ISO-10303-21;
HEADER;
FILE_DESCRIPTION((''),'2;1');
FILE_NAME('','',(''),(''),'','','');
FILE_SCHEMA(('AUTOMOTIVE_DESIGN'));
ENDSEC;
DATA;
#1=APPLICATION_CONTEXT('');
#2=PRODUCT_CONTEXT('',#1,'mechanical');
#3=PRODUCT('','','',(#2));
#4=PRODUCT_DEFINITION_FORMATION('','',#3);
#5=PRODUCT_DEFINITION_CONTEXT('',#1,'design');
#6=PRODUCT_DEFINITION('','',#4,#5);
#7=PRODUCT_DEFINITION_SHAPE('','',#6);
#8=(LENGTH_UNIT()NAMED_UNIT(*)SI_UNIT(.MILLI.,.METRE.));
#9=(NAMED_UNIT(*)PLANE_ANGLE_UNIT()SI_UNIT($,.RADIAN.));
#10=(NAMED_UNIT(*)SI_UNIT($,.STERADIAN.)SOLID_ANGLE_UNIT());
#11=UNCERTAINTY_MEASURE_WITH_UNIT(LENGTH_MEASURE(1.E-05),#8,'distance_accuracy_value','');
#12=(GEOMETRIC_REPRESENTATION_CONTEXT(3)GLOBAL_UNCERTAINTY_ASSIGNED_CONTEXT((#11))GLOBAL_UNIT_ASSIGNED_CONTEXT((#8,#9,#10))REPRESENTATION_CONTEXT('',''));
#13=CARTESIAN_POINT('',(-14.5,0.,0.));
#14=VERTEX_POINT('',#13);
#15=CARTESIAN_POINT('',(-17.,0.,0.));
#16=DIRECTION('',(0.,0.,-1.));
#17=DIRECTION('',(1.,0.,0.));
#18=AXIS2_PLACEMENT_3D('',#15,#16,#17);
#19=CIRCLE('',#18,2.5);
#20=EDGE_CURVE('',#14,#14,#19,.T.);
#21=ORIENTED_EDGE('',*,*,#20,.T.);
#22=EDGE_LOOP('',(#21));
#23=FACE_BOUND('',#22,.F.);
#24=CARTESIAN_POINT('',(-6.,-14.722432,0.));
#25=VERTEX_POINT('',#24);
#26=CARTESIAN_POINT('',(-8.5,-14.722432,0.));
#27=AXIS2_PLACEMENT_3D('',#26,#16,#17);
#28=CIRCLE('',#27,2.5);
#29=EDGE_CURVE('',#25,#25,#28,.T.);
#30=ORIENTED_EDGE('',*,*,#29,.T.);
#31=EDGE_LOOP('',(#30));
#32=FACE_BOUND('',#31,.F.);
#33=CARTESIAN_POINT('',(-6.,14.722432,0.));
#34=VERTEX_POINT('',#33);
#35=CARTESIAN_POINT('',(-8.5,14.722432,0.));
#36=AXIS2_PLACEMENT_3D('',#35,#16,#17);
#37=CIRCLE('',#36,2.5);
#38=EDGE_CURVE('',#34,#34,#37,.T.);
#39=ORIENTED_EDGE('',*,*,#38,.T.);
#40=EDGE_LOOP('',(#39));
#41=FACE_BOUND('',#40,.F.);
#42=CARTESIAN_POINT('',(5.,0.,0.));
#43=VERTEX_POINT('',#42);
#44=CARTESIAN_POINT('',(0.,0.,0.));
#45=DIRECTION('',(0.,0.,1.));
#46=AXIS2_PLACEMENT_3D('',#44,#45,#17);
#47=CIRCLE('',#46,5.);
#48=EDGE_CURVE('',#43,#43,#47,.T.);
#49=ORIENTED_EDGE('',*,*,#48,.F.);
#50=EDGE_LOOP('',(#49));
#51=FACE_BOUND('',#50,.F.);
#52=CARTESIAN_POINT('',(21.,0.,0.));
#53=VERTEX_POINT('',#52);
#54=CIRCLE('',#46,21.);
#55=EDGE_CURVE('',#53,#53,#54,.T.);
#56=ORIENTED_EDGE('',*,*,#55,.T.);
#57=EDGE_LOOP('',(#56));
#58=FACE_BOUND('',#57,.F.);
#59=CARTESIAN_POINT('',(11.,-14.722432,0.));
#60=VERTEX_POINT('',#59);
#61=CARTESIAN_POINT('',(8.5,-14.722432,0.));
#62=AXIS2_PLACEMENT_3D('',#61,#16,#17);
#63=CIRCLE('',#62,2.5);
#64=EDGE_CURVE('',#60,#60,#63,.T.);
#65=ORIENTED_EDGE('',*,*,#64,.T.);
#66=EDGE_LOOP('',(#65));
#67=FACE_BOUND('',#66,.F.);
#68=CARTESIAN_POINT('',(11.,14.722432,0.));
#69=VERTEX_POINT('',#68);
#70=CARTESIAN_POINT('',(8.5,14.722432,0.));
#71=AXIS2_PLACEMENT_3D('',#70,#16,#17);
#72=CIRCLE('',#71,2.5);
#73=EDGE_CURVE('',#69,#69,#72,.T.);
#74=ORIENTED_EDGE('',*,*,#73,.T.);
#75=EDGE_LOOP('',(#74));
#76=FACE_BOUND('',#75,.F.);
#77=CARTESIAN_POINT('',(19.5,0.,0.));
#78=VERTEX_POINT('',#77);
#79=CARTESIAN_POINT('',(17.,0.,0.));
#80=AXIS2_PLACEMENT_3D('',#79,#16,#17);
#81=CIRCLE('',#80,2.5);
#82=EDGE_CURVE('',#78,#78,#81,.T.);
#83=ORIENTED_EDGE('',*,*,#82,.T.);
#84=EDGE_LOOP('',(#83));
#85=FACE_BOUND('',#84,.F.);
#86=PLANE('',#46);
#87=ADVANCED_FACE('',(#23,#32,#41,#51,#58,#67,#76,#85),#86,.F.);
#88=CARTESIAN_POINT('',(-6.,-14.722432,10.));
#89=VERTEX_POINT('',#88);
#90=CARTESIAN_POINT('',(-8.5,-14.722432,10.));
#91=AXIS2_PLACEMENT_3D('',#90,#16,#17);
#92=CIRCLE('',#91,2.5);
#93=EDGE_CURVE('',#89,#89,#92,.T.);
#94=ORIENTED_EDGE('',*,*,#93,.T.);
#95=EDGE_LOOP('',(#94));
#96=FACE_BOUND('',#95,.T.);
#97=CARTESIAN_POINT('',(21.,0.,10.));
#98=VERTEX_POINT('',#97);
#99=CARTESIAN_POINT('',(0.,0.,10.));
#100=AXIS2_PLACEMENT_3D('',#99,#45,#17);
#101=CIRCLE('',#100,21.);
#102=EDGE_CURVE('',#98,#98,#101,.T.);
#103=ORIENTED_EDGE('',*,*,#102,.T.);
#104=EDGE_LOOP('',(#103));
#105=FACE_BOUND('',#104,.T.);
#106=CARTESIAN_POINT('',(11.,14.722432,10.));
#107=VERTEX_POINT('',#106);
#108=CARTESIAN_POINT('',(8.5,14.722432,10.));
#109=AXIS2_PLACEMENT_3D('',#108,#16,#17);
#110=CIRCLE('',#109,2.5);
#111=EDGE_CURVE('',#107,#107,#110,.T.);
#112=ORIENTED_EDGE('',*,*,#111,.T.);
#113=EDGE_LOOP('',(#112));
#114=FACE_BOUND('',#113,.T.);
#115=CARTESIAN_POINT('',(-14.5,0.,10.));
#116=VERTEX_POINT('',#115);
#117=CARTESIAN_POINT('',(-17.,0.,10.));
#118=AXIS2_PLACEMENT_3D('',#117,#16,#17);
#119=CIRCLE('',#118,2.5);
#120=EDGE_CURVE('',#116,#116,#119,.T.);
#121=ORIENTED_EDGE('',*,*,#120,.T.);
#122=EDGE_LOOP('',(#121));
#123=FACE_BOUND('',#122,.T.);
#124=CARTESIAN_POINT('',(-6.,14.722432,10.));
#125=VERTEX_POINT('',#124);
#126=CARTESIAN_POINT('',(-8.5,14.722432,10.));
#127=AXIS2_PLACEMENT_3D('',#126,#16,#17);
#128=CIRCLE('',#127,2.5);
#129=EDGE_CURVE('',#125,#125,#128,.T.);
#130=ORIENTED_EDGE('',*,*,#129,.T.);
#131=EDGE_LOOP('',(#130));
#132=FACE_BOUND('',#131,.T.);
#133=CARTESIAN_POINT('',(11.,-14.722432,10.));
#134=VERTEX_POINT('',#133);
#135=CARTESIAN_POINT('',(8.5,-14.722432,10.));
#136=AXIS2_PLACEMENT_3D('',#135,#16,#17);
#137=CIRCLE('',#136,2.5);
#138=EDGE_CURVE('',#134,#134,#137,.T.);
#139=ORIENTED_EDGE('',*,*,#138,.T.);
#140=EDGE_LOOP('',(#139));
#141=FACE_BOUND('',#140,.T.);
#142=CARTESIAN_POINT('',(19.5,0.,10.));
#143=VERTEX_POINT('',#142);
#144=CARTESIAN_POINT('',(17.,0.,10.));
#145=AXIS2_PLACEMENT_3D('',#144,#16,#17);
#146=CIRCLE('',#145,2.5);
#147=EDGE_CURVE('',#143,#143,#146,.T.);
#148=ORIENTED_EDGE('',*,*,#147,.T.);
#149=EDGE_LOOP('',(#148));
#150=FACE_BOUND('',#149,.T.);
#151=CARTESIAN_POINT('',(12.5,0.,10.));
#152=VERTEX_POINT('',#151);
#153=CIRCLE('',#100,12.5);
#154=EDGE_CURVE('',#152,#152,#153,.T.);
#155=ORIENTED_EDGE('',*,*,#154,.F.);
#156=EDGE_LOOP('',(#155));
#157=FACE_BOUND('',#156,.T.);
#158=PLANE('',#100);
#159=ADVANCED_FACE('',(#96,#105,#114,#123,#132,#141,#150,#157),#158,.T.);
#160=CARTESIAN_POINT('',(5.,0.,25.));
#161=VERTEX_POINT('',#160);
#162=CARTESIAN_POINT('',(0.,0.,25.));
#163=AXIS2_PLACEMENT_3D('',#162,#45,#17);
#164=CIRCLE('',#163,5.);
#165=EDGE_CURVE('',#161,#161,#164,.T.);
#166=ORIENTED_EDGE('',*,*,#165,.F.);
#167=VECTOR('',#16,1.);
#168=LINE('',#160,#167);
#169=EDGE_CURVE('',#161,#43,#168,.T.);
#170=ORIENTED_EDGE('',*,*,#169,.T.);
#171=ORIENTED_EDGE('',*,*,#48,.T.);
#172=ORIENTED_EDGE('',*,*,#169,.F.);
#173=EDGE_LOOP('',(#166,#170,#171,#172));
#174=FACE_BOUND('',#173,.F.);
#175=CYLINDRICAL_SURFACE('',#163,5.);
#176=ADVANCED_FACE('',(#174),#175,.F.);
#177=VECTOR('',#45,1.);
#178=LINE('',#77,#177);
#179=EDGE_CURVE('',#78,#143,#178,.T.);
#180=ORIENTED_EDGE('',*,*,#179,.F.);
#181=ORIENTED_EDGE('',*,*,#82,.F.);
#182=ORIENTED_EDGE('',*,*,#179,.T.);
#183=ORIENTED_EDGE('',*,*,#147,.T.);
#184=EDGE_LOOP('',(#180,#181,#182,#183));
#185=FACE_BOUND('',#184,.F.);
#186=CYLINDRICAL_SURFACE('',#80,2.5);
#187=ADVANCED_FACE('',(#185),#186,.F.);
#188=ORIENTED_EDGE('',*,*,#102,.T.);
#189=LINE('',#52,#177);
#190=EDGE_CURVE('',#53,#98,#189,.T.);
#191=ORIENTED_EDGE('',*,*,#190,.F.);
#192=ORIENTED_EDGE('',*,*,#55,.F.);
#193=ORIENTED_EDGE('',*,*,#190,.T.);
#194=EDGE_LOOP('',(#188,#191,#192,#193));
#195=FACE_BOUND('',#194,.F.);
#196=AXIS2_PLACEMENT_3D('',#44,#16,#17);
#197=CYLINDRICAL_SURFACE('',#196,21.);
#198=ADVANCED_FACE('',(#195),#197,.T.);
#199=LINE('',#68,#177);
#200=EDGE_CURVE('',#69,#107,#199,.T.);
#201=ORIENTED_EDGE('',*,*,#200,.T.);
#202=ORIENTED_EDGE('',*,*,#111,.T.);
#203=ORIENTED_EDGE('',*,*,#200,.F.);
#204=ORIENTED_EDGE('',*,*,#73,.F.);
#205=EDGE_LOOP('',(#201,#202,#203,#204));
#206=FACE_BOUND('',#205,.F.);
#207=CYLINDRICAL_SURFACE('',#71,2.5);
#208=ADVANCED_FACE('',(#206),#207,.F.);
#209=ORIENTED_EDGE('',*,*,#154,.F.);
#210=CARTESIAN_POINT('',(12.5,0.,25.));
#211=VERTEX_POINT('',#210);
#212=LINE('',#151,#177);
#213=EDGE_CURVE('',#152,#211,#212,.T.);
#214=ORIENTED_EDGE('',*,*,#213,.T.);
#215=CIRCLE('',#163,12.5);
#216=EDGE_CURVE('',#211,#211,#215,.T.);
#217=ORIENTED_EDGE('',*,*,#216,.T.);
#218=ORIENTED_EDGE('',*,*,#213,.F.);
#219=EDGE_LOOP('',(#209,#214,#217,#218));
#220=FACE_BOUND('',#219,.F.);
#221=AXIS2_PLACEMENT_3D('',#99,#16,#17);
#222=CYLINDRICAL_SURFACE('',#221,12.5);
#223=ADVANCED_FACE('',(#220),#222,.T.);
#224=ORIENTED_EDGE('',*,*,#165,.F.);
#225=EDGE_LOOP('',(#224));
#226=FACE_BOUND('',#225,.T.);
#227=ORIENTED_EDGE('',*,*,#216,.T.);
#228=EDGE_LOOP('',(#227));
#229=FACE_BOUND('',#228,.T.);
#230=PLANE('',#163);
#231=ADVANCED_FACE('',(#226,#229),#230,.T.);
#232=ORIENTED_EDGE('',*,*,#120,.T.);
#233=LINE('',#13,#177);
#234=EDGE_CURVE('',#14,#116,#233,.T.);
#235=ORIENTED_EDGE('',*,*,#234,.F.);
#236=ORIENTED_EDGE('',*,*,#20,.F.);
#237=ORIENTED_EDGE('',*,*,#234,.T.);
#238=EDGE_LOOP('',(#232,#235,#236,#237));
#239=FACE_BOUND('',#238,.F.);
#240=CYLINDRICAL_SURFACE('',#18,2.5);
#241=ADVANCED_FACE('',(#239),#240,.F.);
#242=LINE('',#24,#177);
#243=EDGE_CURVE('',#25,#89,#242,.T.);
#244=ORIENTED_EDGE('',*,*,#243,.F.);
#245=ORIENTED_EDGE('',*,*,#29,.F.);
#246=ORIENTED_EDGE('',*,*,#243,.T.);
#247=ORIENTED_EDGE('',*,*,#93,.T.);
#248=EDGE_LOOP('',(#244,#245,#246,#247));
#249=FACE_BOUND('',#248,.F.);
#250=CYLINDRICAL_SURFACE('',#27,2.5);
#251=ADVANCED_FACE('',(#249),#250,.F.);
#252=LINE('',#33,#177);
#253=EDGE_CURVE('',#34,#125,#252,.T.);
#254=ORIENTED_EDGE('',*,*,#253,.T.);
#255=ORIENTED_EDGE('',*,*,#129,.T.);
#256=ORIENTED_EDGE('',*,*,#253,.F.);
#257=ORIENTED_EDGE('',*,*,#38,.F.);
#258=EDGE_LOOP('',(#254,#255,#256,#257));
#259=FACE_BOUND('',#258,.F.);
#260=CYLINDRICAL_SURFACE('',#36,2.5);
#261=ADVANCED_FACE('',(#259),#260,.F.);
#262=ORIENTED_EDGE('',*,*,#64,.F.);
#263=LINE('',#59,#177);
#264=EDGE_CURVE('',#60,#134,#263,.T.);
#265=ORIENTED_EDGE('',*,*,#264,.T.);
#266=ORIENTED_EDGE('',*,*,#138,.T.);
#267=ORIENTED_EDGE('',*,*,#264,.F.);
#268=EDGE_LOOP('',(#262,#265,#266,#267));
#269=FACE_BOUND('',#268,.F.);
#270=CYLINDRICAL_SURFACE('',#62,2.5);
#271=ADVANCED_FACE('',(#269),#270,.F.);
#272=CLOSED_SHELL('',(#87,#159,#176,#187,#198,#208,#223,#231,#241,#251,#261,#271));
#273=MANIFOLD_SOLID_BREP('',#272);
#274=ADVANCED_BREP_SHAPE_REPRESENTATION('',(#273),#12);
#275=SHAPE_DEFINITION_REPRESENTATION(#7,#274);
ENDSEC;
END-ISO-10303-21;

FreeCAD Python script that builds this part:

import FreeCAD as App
import Part
import Sketcher
from FreeCAD import Vector

doc = App.newDocument("Part")
body = doc.addObject("PartDesign::Body", "Body")

sketch1 = body.newObject("Sketcher::SketchObject", "Sketch")
sketch1.AttachmentSupport = (doc.getObject("XY_Plane"), [""])
sketch1.MapMode = "FlatFace"
sketch1.addGeometry(Part.Circle(Vector(0, 0, 0), Vector(0, 0, 1), 21), False)
sketch1.addConstraint(Sketcher.Constraint("Coincident", 0, 3, -1, 1))
sketch1.addConstraint(Sketcher.Constraint("Diameter", 0, 42.0))
pad1 = body.newObject("PartDesign::Pad", "Pad")
pad1.Profile = sketch1
pad1.Length = 10

sketch2 = body.newObject("Sketcher::SketchObject", "Sketch001")
sketch2.AttachmentSupport = (doc.getObject("XY_Plane"), [""])
sketch2.MapMode = "FlatFace"
sketch2.AttachmentOffset = App.Placement(Vector(0, 0, 10), App.Rotation())
sketch2.addGeometry(Part.Circle(Vector(0, 0, 0), Vector(0, 0, 1), 12), False)
sketch2.addConstraint(Sketcher.Constraint("Coincident", 0, 3, -1, 1))
sketch2.addConstraint(Sketcher.Constraint("Diameter", 0, 25.0))
pad2 = body.newObject("PartDesign::Pad", "Pad001")
pad2.Profile = sketch2
pad2.Length = 15

sketch3 = body.newObject("Sketcher::SketchObject", "Sketch002")
sketch3.AttachmentSupport = (doc.getObject("XY_Plane"), [""])
sketch3.MapMode = "FlatFace"
sketch3.AttachmentOffset = App.Placement(Vector(0, 0, 25), App.Rotation())
sketch3.addGeometry(Part.Circle(Vector(0, 0, 0), Vector(0, 0, 1), 5), False)
sketch3.addConstraint(Sketcher.Constraint("Coincident", 0, 3, -1, 1))
sketch3.addConstraint(Sketcher.Constraint("Diameter", 0, 10.0))
pocket1 = body.newObject("PartDesign::Pocket", "Pocket")
pocket1.Profile = sketch3
pocket1.Length = 30

sketch4 = body.newObject("Sketcher::SketchObject", "Sketch003")
sketch4.AttachmentSupport = (doc.getObject("XY_Plane"), [""])
sketch4.MapMode = "FlatFace"
sketch4.addGeometry(Part.Circle(Vector(17, 0, 0), Vector(0, 0, 1), 2.5), False)
sketch4.addGeometry(Part.Circle(Vector(8.5, -14.7, 0), Vector(0, 0, 1), 2.5), False)
sketch4.addGeometry(Part.Circle(Vector(-8.5, -14.7, 0), Vector(0, 0, 1), 2.5), False)
sketch4.addGeometry(Part.Circle(Vector(-17, 0, 0), Vector(0, 0, 1), 2.5), False)
sketch4.addGeometry(Part.Circle(Vector(-8.5, 14.7, 0), Vector(0, 0, 1), 2.5), False)
sketch4.addGeometry(Part.Circle(Vector(8.5, 14.7, 0), Vector(0, 0, 1), 2.5), False)
sketch4.addConstraint(Sketcher.Constraint("Equal", 0, 1))
sketch4.addConstraint(Sketcher.Constraint("Equal", 1, 2))
sketch4.addConstraint(Sketcher.Constraint("Equal", 2, 3))
sketch4.addConstraint(Sketcher.Constraint("Equal", 3, 4))
sketch4.addConstraint(Sketcher.Constraint("Equal", 4, 5))
sketch4.addConstraint(Sketcher.Constraint("Symmetric", 0, 3, 3, 3, -1, 1))
sketch4.addConstraint(Sketcher.Constraint("Symmetric", 1, 3, 4, 3, -1, 1))
sketch4.addConstraint(Sketcher.Constraint("Symmetric", 2, 3, 5, 3, -1, 1))
sketch4.addConstraint(Sketcher.Constraint("Symmetric", 1, 3, 2, 3, -2))
sketch4.addConstraint(Sketcher.Constraint("PointOnObject", 0, 3, -1))
sketch4.addConstraint(Sketcher.Constraint("Diameter", 0, 5.0))
sketch4.addConstraint(Sketcher.Constraint("DistanceX", -1, 1, 0, 3, 17.0))
sketch4.addConstraint(Sketcher.Constraint("DistanceX", 2, 3, 1, 3, 17.0))
sketch4.addConstraint(Sketcher.Constraint("DistanceY", 1, 3, -1, 1, 14.722432))
pocket2 = body.newObject("PartDesign::Pocket", "Pocket001")
pocket2.Profile = sketch4
pocket2.Length = 25
pocket2.Reversed = True

doc.recompute()
